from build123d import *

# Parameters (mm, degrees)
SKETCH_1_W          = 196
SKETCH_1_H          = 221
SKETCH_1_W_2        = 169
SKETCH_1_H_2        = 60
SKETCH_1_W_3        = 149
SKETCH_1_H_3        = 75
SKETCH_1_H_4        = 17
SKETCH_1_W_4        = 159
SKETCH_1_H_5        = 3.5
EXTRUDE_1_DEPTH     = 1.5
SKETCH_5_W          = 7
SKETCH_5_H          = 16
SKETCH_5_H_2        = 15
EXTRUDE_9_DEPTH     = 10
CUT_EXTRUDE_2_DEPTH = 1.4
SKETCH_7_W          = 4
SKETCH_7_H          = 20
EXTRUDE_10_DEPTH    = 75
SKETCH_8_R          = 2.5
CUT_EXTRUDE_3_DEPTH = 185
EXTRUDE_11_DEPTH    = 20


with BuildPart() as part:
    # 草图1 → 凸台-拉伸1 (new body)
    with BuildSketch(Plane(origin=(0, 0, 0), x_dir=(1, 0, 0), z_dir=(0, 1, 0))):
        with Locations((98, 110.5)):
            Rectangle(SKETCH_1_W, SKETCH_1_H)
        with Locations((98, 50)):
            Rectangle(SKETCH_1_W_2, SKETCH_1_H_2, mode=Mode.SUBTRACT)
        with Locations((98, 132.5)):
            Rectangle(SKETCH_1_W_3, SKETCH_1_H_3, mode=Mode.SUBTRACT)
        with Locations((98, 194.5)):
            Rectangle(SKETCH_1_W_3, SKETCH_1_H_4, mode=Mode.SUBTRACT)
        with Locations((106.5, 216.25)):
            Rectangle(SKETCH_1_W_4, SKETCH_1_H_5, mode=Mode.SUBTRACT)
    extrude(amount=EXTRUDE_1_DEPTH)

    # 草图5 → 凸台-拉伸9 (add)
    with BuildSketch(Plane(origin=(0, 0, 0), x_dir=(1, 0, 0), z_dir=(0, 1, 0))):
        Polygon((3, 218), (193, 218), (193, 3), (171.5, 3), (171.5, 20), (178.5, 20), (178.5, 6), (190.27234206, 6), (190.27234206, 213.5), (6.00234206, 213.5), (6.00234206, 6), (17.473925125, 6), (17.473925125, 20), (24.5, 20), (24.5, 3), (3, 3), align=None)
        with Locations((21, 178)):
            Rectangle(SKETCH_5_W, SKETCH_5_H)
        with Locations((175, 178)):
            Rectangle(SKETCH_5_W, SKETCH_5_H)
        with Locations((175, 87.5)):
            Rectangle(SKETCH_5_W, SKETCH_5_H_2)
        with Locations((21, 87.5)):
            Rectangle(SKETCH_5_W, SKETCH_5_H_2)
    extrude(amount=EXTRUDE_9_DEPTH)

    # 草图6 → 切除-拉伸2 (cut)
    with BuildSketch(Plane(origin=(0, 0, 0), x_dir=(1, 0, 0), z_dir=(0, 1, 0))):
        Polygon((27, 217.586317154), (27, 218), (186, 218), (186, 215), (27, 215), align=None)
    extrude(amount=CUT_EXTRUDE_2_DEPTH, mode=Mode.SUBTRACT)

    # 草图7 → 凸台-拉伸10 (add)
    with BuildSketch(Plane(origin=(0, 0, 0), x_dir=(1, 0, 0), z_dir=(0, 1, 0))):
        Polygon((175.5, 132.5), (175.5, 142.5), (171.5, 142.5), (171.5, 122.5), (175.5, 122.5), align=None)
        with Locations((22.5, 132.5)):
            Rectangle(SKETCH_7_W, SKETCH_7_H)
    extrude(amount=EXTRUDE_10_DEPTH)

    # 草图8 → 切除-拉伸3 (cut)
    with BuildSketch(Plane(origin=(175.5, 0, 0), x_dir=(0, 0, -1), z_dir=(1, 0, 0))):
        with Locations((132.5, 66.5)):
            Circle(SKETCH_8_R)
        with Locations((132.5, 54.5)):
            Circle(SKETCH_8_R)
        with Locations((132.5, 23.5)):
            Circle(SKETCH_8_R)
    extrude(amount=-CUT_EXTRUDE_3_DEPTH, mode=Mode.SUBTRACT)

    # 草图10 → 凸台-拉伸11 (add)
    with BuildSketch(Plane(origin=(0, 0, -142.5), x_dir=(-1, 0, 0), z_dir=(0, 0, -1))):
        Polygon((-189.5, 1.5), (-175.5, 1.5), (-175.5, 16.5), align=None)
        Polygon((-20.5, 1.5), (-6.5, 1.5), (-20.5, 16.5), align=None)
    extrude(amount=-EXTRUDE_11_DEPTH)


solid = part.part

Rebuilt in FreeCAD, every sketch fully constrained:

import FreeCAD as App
import Part
import Sketcher
from FreeCAD import Vector
Q = App.Units.Quantity


def add_polygon(sketch, points):
    """Adds a closed chain of lines whose ends are joined by coincident constraints."""
    first, n = sketch.GeometryCount, len(points)
    for a, b in zip(points, points[1:] + points[:1]):
        sketch.addGeometry(Part.LineSegment(App.Vector(*a, 0), App.Vector(*b, 0)), False)
    for i in range(n):
        sketch.addConstraint(Sketcher.Constraint("Coincident", first + i, 2, first + (i + 1) % n, 1))

doc = App.newDocument("Part")
body = doc.addObject("PartDesign::Body", "Body")

# Sketch on XZ plane
sketch1 = doc.addObject("Sketcher::SketchObject", "Sketch")
body.addObject(sketch1)
sketch1.AttachmentSupport = (doc.XZ_Plane, [""])
sketch1.MapMode = "FlatFace"
add_polygon(sketch1, [(0, -221), (0, 0), (196, 0), (196, -221)])  # lines 0-3
add_polygon(sketch1, [(182.5, -20), (13.5, -20), (13.5, -80), (182.5, -80)])  # lines 4-7
add_polygon(sketch1, [(172.5, -95), (23.5, -95), (23.5, -170), (172.5, -170)])  # lines 8-11
add_polygon(sketch1, [(172.5, -186), (23.5, -186), (23.5, -203), (172.5, -203)])  # lines 12-15
add_polygon(sketch1, [(186, -214.5), (27, -214.5), (27, -218), (186, -218)])  # lines 16-19
sketch1.addConstraint([
    Sketcher.Constraint("Vertical", 0),
    Sketcher.Constraint("Horizontal", 1),
    Sketcher.Constraint("Vertical", 2),
    Sketcher.Constraint("Horizontal", 3),
    Sketcher.Constraint("Horizontal", 4),
    Sketcher.Constraint("Vertical", 5),
    Sketcher.Constraint("Horizontal", 6),
    Sketcher.Constraint("Vertical", 7),
    Sketcher.Constraint("Horizontal", 8),
    Sketcher.Constraint("Vertical", 9),
    Sketcher.Constraint("Horizontal", 10),
    Sketcher.Constraint("Vertical", 11),
    Sketcher.Constraint("Horizontal", 12),
    Sketcher.Constraint("Vertical", 13),
    Sketcher.Constraint("Horizontal", 14),
    Sketcher.Constraint("Vertical", 15),
    Sketcher.Constraint("Horizontal", 16),
    Sketcher.Constraint("Vertical", 17),
    Sketcher.Constraint("Horizontal", 18),
    Sketcher.Constraint("Vertical", 19),
    Sketcher.Constraint("Coincident", 0, 2, -1, 1),
    Sketcher.Constraint("Vertical", 9, 2, 12, 2),
    Sketcher.Constraint("Vertical", 11, 2, 14, 2),
    Sketcher.Constraint("DistanceX", 1, 1, 1, 2, Q("196 mm")),
    Sketcher.Constraint("DistanceX", 4, 2, 4, 1, Q("169 mm")),
    Sketcher.Constraint("DistanceX", 8, 2, 8, 1, Q("149 mm")),
    Sketcher.Constraint("DistanceX", 16, 2, 16, 1, Q("159 mm")),
    Sketcher.Constraint("DistanceY", 0, 1, 0, 2, Q("221 mm")),
    Sketcher.Constraint("DistanceY", 5, 2, 5, 1, Q("60 mm")),
    Sketcher.Constraint("DistanceY", 9, 2, 9, 1, Q("75 mm")),
    Sketcher.Constraint("DistanceY", 13, 2, 13, 1, Q("17 mm")),
    Sketcher.Constraint("DistanceY", 17, 2, 17, 1, Q("3.5 mm")),
    Sketcher.Constraint("DistanceY", 4, 2, -1, 1, Q("20 mm")),
    Sketcher.Constraint("DistanceY", 8, 2, -1, 1, Q("95 mm")),
    Sketcher.Constraint("DistanceY", 12, 2, -1, 1, Q("186 mm")),
    Sketcher.Constraint("DistanceX", -1, 1, 16, 2, Q("27 mm")),
    Sketcher.Constraint("DistanceY", 17, 2, -1, 1, Q("218 mm")),
    Sketcher.Constraint("DistanceX", 5, 2, 8, 2, Q("10 mm")),
    Sketcher.Constraint("DistanceX", -1, 1, 4, 2, Q("13.5 mm")),
])
pad1 = doc.addObject("PartDesign::Pad", "Pad")
body.addObject(pad1)
pad1.Profile = sketch1
pad1.Length = 1.5
pad1.Reversed = True

# Sketch on XZ plane
sketch2 = doc.addObject("Sketcher::SketchObject", "Sketch001")
body.addObject(sketch2)
sketch2.AttachmentSupport = (doc.XZ_Plane, [""])
sketch2.MapMode = "FlatFace"
add_polygon(sketch2, [(193, -218), (3, -218), (3, -3), (24, -3), (24, -20), (17, -20), (17, -6), (6, -6), (6, -214), (190, -214), (190, -6), (178, -6), (178, -20), (172, -20), (172, -3), (193, -3)])  # lines 0-15
add_polygon(sketch2, [(18, -186), (18, -170), (24, -170), (24, -186)])  # lines 16-19
add_polygon(sketch2, [(172, -186), (172, -170), (178, -170), (178, -186)])  # lines 20-23
add_polygon(sketch2, [(172, -95), (172, -80), (178, -80), (178, -95)])  # lines 24-27
add_polygon(sketch2, [(18, -95), (18, -80), (24, -80), (24, -95)])  # lines 28-31
sketch2.addConstraint([
    Sketcher.Constraint("Horizontal", 0),
    Sketcher.Constraint("Vertical", 1),
    Sketcher.Constraint("Horizontal", 2),
    Sketcher.Constraint("Vertical", 3),
    Sketcher.Constraint("Horizontal", 4),
    Sketcher.Constraint("Vertical", 5),
    Sketcher.Constraint("Horizontal", 6),
    Sketcher.Constraint("Vertical", 7),
    Sketcher.Constraint("Horizontal", 8),
    Sketcher.Constraint("Vertical", 9),
    Sketcher.Constraint("Horizontal", 10),
    Sketcher.Constraint("Vertical", 11),
    Sketcher.Constraint("Horizontal", 12),
    Sketcher.Constraint("Vertical", 13),
    Sketcher.Constraint("Horizontal", 14),
    Sketcher.Constraint("Vertical", 15),
    Sketcher.Constraint("Vertical", 16),
    Sketcher.Constraint("Horizontal", 17),
    Sketcher.Constraint("Vertical", 18),
    Sketcher.Constraint("Horizontal", 19),
    Sketcher.Constraint("Vertical", 20),
    Sketcher.Constraint("Horizontal", 21),
    Sketcher.Constraint("Vertical", 22),
    Sketcher.Constraint("Horizontal", 23),
    Sketcher.Constraint("Vertical", 24),
    Sketcher.Constraint("Horizontal", 25),
    Sketcher.Constraint("Vertical", 26),
    Sketcher.Constraint("Horizontal", 27),
    Sketcher.Constraint("Vertical", 28),
    Sketcher.Constraint("Horizontal", 29),
    Sketcher.Constraint("Vertical", 30),
    Sketcher.Constraint("Horizontal", 31),
    Sketcher.Constraint("Horizontal", 6, 2, 9, 2),
    Sketcher.Constraint("Horizontal", 4, 2, 11, 2),
    Sketcher.Constraint("Horizontal", 2, 2, 13, 2),
    Sketcher.Constraint("Horizontal", 17, 2, 20, 2),
    Sketcher.Constraint("Horizontal", 19, 2, 22, 2),
    Sketcher.Constraint("Horizontal", 25, 2, 28, 2),
    Sketcher.Constraint("Horizontal", 27, 2, 30, 2),
    Sketcher.Constraint("Vertical", 3, 2, 17, 2),
    Sketcher.Constraint("Vertical", 13, 2, 20, 2),
    Sketcher.Constraint("Vertical", 11, 2, 21, 2),
    Sketcher.Constraint("Vertical", 23, 2, 24, 2),
    Sketcher.Constraint("Vertical", 22, 2, 25, 2),
    Sketcher.Constraint("Vertical", 19, 2, 28, 2),
    Sketcher.Constraint("Vertical", 18, 2, 29, 2),
    Sketcher.Constraint("Equal", 2, 14),
    Sketcher.Constraint("Equal", 12, 17),
    Sketcher.Constraint("DistanceX", 0, 2, 0, 1, Q("190 mm")),
    Sketcher.Constraint("DistanceX", 12, 2, 12, 1, Q("7 mm")),
    Sketcher.Constraint("DistanceY", 1, 1, 1, 2, Q("215 mm")),
    Sketcher.Constraint("DistanceY", 3, 2, 3, 1, Q("17 mm")),
    Sketcher.Constraint("DistanceY", 5, 1, 5, 2, Q("14 mm")),
    Sketcher.Constraint("DistanceY", 16, 1, 16, 2, Q("16 mm")),
    Sketcher.Constraint("DistanceY", 24, 1, 24, 2, Q("15 mm")),
    Sketcher.Constraint("DistanceX", 2, 1, 2, 2, Q("21.5 mm")),
    Sketcher.Constraint("DistanceY", 7, 2, 7, 1, Q("207.5 mm")),
    Sketcher.Constraint("DistanceX", -1, 1, 0, 2, Q("3 mm")),
    Sketcher.Constraint("DistanceY", 0, 2, -1, 1, Q("218 mm")),
    Sketcher.Constraint("DistanceY", 16, 2, -1, 1, Q("170 mm")),
    Sketcher.Constraint("DistanceY", 24, 2, -1, 1, Q("80 mm")),
    Sketcher.Constraint("DistanceX", 8, 1, 8, 2, Q("184.27 mm")),
    Sketcher.Constraint("DistanceX", 4, 2, 4, 1, Q("7.026075 mm")),
    Sketcher.Constraint("DistanceX", 6, 2, 6, 1, Q("11.471583 mm")),
])
pad2 = doc.addObject("PartDesign::Pad", "Pad001")
body.addObject(pad2)
pad2.Profile = sketch2
pad2.Length = 10
pad2.Reversed = True

# Sketch on XZ plane
sketch3 = doc.addObject("Sketcher::SketchObject", "Sketch002")
body.addObject(sketch3)
sketch3.AttachmentSupport = (doc.XZ_Plane, [""])
sketch3.MapMode = "FlatFace"
add_polygon(sketch3, [(27, -218), (27, -215), (186, -215), (186, -218)])  # lines 0-3
sketch3.addConstraint([
    Sketcher.Constraint("Vertical", 0),
    Sketcher.Constraint("Horizontal", 1),
    Sketcher.Constraint("Vertical", 2),
    Sketcher.Constraint("Horizontal", 3),
    Sketcher.Constraint("DistanceX", 1, 1, 1, 2, Q("159 mm")),
    Sketcher.Constraint("DistanceY", 0, 1, 0, 2, Q("3 mm")),
    Sketcher.Constraint("DistanceX", -1, 1, 0, 2, Q("27 mm")),
    Sketcher.Constraint("DistanceY", 0, 2, -1, 1, Q("215 mm")),
])
pocket1 = doc.addObject("PartDesign::Pocket", "Pocket")
body.addObject(pocket1)
pocket1.Profile = sketch3
pocket1.Length = 1.4

# Sketch on XZ plane
sketch4 = doc.addObject("Sketcher::SketchObject", "Sketch003")
body.addObject(sketch4)
sketch4.AttachmentSupport = (doc.XZ_Plane, [""])
sketch4.MapMode = "FlatFace"
add_polygon(sketch4, [(175.5, -142.5), (171.5, -142.5), (171.5, -122.5), (175.5, -122.5)])  # lines 0-3
add_polygon(sketch4, [(20.5, -142.5), (20.5, -122.5), (24.5, -122.5), (24.5, -142.5)])  # lines 4-7
sketch4.addConstraint([
    Sketcher.Constraint("Horizontal", 0),
    Sketcher.Constraint("Vertical", 1),
    Sketcher.Constraint("Horizontal", 2),
    Sketcher.Constraint("Vertical", 3),
    Sketcher.Constraint("Vertical", 4),
    Sketcher.Constraint("Horizontal", 5),
    Sketcher.Constraint("Vertical", 6),
    Sketcher.Constraint("Horizontal", 7),
    Sketcher.Constraint("Horizontal", 2, 2, 4, 2),
    Sketcher.Constraint("Horizontal", 3, 2, 6, 2),
    Sketcher.Constraint("Equal", 2, 5),
    Sketcher.Constraint("DistanceX", 0, 2, 0, 1, Q("4 mm")),
    Sketcher.Constraint("DistanceY", 1, 1, 1, 2, Q("20 mm")),
    Sketcher.Constraint("DistanceX", 4, 2, 1, 2, Q("151 mm")),
    Sketcher.Constraint("DistanceX", -1, 1, 0, 2, Q("171.5 mm")),
    Sketcher.Constraint("DistanceY", 0, 2, -1, 1, Q("142.5 mm")),
])
pad3 = doc.addObject("PartDesign::Pad", "Pad002")
body.addObject(pad3)
pad3.Profile = sketch4
pad3.Length = 75
pad3.Reversed = True

# Sketch on YZ plane
sketch5 = doc.addObject("Sketcher::SketchObject", "Sketch004")
body.addObject(sketch5)
sketch5.AttachmentSupport = (doc.YZ_Plane, [""])
sketch5.MapMode = "FlatFace"
sketch5.AttachmentOffset = App.Placement(Vector(0, 0, 175.5), App.Rotation())
sketch5.addGeometry([
    Part.Circle(Vector(66.5, -132.5, 0), Vector(0, 0, 1), 2.5),
    Part.Circle(Vector(54.5, -132.5, 0), Vector(0, 0, 1), 2.5),
    Part.Circle(Vector(23.5, -132.5, 0), Vector(0, 0, 1), 2.5),
], False)
sketch5.addConstraint([
    Sketcher.Constraint("Equal", 0, 1),
    Sketcher.Constraint("Equal", 1, 2),
    Sketcher.Constraint("Horizontal", 0, 3, 1, 3),
    Sketcher.Constraint("Horizontal", 1, 3, 2, 3),
    Sketcher.Constraint("Diameter", 0, Q("5 mm")),
    Sketcher.Constraint("DistanceX", 1, 3, 0, 3, Q("12 mm")),
    Sketcher.Constraint("DistanceX", 2, 3, 1, 3, Q("31 mm")),
    Sketcher.Constraint("DistanceX", -1, 1, 0, 3, Q("66.5 mm")),
    Sketcher.Constraint("DistanceY", 0, 3, -1, 1, Q("132.5 mm")),
])
pocket2 = doc.addObject("PartDesign::Pocket", "Pocket001")
body.addObject(pocket2)
pocket2.Profile = sketch5
pocket2.Length = 185

# Sketch on XY plane
sketch6 = doc.addObject("Sketcher::SketchObject", "Sketch005")
body.addObject(sketch6)
sketch6.AttachmentSupport = (doc.XY_Plane, [""])
sketch6.MapMode = "FlatFace"
sketch6.AttachmentOffset = App.Placement(Vector(0, 0, -142.5), App.Rotation())
add_polygon(sketch6, [(190, 2), (176, 2), (176, 16)])  # lines 0-2
add_polygon(sketch6, [(20, 2), (6, 2), (20, 16)])  # lines 3-5
sketch6.addConstraint([
    Sketcher.Constraint("Horizontal", 0),
    Sketcher.Constraint("Vertical", 1),
    Sketcher.Constraint("Horizontal", 3),
    Sketcher.Constraint("Vertical", 5),
    Sketcher.Constraint("Horizontal", 2, 2, 3, 2),
    Sketcher.Constraint("Horizontal", 1, 2, 4, 2),
    Sketcher.Constraint("Equal", 0, 3),
    Sketcher.Constraint("DistanceX", 0, 2, 0, 1, Q("14 mm")),
    Sketcher.Constraint("DistanceY", 1, 1, 1, 2, Q("15 mm")),
    Sketcher.Constraint("DistanceX", 3, 2, 0, 2, Q("169 mm")),
    Sketcher.Constraint("DistanceX", -1, 1, 0, 2, Q("175.5 mm")),
    Sketcher.Constraint("DistanceY", -1, 1, 0, 2, Q("1.5 mm")),
])
pad4 = doc.addObject("PartDesign::Pad", "Pad003")
body.addObject(pad4)
pad4.Profile = sketch6
pad4.Length = 20

doc.recompute()
